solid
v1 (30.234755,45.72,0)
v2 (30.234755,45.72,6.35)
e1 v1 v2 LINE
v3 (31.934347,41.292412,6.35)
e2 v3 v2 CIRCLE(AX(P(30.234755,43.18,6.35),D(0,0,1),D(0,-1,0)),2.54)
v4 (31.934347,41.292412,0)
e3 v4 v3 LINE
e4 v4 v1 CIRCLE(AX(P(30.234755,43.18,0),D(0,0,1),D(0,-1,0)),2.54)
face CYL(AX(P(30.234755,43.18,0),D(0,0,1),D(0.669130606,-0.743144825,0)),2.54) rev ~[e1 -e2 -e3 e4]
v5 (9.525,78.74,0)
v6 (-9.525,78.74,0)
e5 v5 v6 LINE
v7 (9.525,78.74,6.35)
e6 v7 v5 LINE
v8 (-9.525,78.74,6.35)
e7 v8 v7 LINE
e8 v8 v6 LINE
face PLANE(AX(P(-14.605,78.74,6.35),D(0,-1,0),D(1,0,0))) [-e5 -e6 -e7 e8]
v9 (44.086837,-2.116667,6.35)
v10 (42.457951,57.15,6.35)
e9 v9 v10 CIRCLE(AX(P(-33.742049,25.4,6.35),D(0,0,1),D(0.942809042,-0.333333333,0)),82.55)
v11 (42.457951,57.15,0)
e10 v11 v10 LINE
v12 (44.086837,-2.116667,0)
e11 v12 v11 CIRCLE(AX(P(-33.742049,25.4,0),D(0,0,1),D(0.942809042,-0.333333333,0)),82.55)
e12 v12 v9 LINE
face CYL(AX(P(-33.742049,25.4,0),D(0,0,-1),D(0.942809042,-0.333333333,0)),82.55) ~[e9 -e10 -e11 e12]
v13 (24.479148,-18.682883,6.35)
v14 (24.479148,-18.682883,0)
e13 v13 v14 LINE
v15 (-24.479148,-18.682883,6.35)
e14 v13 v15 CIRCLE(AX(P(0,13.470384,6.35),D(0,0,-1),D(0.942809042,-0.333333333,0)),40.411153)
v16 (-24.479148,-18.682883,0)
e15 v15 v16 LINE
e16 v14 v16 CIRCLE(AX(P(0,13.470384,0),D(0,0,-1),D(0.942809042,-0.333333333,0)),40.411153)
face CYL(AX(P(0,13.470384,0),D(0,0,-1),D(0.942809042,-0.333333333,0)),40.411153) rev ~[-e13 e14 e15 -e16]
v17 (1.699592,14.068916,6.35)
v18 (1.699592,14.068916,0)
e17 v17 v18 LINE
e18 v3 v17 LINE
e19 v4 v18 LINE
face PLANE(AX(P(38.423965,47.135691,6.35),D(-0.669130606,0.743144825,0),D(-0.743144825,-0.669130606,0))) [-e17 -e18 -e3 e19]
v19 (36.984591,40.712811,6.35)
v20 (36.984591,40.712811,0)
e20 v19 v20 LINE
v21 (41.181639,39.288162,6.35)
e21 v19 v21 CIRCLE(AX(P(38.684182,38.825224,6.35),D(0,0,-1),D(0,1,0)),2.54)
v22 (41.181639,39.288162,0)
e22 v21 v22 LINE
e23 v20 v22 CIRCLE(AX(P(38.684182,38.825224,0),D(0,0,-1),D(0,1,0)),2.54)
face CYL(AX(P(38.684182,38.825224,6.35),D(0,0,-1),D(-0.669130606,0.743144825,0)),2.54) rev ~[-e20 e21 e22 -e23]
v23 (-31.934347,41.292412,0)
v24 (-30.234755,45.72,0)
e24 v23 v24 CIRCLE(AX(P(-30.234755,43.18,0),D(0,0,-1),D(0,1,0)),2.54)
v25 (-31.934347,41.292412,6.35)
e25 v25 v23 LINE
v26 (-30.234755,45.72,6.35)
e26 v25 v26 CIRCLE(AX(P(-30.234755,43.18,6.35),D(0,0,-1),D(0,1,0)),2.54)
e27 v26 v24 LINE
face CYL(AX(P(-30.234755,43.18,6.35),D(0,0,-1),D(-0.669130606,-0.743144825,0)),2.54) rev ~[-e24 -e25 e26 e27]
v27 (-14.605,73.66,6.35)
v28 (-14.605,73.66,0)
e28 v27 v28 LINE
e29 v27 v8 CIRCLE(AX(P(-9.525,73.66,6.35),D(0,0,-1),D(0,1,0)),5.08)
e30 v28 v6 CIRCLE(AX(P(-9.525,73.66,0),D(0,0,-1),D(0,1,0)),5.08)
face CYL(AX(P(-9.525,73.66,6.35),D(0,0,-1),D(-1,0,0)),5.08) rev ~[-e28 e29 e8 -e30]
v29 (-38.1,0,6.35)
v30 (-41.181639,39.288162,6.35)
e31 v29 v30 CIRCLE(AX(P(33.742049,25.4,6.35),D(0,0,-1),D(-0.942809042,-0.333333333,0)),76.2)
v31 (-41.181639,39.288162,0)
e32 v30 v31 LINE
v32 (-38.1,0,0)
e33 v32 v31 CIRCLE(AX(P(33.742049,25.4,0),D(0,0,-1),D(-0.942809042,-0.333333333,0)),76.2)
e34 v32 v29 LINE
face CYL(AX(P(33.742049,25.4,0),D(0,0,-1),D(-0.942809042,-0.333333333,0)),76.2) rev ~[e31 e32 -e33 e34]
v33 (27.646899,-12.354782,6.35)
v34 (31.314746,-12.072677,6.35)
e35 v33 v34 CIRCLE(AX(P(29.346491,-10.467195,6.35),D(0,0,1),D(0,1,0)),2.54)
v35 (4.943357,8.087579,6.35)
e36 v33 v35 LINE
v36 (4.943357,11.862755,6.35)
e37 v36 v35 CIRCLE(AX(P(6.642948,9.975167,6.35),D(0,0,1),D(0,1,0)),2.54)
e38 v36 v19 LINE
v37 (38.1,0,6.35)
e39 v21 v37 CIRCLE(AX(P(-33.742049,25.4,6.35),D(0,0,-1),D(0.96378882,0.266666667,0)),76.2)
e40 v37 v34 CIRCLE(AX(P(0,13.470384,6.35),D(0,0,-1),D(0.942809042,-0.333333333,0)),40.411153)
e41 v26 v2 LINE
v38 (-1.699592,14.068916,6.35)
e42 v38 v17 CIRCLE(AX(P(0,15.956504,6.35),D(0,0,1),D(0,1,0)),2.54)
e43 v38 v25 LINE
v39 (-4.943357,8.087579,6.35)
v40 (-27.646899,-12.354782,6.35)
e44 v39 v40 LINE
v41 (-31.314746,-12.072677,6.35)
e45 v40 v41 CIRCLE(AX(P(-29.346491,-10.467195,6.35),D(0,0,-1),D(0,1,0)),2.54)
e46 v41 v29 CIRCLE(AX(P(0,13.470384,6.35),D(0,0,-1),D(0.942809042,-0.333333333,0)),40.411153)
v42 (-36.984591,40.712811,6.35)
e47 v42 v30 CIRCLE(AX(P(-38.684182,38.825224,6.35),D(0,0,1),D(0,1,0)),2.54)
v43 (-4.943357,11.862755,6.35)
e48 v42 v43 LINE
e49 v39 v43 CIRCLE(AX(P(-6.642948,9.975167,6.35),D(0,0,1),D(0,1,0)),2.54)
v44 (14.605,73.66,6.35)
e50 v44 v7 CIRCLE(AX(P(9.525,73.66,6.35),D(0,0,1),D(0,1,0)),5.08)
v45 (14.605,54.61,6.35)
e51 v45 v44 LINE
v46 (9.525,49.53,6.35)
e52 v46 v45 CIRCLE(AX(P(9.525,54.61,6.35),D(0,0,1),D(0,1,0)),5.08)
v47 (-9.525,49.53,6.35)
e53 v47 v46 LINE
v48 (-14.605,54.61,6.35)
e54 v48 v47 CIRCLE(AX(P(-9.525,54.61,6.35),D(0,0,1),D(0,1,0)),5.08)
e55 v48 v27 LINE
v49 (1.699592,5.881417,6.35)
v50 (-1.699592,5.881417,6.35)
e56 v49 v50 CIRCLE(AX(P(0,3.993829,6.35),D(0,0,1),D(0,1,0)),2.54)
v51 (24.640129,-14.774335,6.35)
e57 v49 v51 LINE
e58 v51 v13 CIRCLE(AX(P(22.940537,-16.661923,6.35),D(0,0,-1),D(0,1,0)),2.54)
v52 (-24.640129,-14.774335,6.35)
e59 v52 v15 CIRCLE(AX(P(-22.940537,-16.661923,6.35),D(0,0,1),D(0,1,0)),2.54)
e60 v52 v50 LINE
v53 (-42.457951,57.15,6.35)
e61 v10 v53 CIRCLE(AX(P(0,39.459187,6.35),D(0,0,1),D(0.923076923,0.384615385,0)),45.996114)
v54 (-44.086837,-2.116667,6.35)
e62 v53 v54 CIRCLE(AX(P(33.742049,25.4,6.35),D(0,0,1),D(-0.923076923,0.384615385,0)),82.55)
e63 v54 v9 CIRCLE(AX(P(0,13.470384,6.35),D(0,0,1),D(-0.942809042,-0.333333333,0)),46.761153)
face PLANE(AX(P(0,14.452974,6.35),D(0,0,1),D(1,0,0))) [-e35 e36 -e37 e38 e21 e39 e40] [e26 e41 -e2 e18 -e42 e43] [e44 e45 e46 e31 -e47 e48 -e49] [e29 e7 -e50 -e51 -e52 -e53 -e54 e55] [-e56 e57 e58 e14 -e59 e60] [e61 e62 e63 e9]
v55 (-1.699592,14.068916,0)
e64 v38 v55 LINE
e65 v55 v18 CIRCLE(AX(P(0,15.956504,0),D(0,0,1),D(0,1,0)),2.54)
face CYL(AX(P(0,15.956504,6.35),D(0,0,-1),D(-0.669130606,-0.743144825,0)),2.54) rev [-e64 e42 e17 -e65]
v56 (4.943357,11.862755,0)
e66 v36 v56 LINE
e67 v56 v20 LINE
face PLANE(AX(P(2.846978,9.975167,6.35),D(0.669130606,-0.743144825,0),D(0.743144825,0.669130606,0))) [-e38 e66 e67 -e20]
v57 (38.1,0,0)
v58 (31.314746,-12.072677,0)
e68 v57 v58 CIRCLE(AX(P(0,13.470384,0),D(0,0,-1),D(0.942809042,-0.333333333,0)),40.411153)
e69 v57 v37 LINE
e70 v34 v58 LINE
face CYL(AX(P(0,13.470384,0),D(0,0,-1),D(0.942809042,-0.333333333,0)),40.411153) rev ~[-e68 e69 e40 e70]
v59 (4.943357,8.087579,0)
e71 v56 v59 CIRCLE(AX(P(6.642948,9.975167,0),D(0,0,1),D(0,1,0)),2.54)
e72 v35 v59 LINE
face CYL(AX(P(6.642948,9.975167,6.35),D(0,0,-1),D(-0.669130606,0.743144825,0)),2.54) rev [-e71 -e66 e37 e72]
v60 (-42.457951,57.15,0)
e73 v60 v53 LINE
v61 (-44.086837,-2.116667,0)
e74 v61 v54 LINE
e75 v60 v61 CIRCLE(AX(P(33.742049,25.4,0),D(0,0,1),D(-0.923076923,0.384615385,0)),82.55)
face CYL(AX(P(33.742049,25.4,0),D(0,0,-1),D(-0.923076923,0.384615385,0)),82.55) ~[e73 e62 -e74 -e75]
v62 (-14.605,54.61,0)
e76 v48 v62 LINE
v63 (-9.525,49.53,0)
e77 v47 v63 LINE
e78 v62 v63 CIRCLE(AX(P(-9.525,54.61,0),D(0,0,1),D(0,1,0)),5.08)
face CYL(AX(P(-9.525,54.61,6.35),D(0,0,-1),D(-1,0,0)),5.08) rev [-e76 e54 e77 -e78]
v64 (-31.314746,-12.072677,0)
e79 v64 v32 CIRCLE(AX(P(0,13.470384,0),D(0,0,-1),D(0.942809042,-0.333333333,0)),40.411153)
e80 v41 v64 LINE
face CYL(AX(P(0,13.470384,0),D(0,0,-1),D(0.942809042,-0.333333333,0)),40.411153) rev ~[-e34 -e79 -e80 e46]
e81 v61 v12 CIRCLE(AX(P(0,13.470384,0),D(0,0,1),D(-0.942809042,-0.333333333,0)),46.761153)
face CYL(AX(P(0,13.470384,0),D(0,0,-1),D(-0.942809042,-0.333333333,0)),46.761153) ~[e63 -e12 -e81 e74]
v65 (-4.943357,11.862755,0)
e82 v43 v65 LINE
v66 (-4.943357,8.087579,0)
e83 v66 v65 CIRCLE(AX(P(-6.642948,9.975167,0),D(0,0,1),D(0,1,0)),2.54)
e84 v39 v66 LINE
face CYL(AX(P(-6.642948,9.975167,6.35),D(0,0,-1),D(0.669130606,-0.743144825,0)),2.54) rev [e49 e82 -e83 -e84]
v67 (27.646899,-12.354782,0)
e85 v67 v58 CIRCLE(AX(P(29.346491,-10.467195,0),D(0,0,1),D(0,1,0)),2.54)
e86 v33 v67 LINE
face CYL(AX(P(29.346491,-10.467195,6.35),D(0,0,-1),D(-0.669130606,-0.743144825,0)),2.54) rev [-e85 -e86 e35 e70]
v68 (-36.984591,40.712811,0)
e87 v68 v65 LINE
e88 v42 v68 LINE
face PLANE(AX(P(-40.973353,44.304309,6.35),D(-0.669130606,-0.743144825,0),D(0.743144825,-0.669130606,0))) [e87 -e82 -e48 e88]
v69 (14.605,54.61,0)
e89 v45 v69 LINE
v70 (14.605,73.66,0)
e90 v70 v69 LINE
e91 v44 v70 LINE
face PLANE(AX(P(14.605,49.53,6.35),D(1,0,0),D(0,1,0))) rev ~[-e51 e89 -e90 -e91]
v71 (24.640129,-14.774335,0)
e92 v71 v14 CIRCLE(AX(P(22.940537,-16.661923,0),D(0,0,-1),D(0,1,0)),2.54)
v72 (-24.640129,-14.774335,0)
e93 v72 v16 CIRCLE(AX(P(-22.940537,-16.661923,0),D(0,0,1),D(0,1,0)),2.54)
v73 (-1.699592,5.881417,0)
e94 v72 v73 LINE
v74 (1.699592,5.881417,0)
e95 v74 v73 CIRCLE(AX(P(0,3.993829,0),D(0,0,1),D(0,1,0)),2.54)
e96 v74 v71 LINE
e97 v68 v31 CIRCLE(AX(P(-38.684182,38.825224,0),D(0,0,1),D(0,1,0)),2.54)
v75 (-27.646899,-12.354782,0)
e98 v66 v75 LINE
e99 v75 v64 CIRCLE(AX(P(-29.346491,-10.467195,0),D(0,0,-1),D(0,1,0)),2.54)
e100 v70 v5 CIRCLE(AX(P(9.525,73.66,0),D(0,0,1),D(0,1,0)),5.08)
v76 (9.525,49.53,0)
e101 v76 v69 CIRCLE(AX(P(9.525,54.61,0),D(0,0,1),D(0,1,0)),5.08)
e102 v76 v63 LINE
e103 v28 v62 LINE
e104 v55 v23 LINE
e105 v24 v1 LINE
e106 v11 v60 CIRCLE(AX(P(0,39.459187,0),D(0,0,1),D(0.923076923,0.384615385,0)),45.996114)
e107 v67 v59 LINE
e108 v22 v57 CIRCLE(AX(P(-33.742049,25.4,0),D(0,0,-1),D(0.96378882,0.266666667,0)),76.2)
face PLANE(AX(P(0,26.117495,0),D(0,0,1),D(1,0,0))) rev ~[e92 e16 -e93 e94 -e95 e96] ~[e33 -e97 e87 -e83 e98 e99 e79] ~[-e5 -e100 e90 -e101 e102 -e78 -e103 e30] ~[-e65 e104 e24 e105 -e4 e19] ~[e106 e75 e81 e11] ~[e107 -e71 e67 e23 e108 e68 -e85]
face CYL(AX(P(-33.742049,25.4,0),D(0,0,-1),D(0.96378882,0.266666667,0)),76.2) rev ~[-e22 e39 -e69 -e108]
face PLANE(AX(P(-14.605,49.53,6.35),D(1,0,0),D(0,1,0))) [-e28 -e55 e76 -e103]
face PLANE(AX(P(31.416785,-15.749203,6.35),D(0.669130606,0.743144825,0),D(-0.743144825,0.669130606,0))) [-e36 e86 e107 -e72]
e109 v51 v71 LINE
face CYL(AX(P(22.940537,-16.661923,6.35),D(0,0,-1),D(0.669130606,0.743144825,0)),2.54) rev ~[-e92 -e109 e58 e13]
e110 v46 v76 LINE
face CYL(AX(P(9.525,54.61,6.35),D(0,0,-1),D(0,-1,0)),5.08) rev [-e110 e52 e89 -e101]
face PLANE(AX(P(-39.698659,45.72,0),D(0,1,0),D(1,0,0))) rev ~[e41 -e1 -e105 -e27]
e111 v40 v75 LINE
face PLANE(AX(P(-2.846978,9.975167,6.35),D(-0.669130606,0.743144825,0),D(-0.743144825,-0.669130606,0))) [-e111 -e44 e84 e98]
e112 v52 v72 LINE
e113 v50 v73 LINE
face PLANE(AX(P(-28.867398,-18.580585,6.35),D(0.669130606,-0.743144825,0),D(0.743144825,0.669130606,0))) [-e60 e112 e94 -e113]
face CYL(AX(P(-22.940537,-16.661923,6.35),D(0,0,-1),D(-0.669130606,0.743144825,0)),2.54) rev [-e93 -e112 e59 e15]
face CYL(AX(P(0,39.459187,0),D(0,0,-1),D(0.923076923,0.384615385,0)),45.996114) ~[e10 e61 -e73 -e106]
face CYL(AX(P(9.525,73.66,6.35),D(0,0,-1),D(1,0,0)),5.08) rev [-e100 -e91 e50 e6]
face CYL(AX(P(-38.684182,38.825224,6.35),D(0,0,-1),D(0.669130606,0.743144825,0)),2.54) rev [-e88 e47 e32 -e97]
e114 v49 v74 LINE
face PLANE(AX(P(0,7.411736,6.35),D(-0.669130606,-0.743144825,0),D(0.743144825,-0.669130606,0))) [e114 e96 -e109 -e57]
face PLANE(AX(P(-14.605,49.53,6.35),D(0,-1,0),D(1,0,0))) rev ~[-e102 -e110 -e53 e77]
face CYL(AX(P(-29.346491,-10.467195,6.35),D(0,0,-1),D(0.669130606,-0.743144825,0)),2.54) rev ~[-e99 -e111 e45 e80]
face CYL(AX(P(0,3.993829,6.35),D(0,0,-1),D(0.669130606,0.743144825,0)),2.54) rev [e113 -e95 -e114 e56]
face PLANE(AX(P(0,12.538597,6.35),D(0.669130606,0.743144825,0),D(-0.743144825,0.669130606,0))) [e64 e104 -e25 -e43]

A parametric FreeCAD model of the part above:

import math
import FreeCAD as App
import Part
import Sketcher
from FreeCAD import Vector
Q = App.Units.Quantity


def edges_at(feature, points):
    """Names of the edges that pass closest to the given points."""
    edges = feature.Shape.Edges
    near = lambda p: min(range(len(edges)), key=lambda i: edges[i].distToShape(Part.Vertex(*p))[0])
    return sorted({f"Edge{near(p) + 1}" for p in points})


def add_polygon(sketch, points):
    """Adds a closed chain of lines whose ends are joined by coincident constraints."""
    first, n = sketch.GeometryCount, len(points)
    for a, b in zip(points, points[1:] + points[:1]):
        sketch.addGeometry(Part.LineSegment(App.Vector(*a, 0), App.Vector(*b, 0)), False)
    for i in range(n):
        sketch.addConstraint(Sketcher.Constraint("Coincident", first + i, 2, first + (i + 1) % n, 1))

doc = App.newDocument("Part")
body = doc.addObject("PartDesign::Body", "Body")

# Sketch on XY plane
sketch1 = body.newObject("Sketcher::SketchObject", "Sketch")
sketch1.AttachmentSupport = (doc.getObject("XY_Plane"), [""])
sketch1.MapMode = "FlatFace"
sketch1.addGeometry([
    Part.ArcOfCircle(Part.Circle(Vector(0, 39, 0), Vector(0, 0, 1), 46), math.radians(23), math.radians(157)),  # 0
    Part.ArcOfCircle(Part.Circle(Vector(34, 25, 0), Vector(0, 0, 1), 83), math.radians(157), math.radians(199)),  # 1
    Part.ArcOfCircle(Part.Circle(Vector(0, 13, 0), Vector(0, 0, 1), 47), math.radians(-161), math.radians(-19)),  # 2
    Part.ArcOfCircle(Part.Circle(Vector(-34, 25, 0), Vector(0, 0, 1), 83), math.radians(-19), math.radians(23)),  # 3
    Part.ArcOfCircle(Part.Circle(Vector(0, 13, 0), Vector(0, 0, 1), 40), math.radians(-161), math.radians(-19)),  # 4
    Part.ArcOfCircle(Part.Circle(Vector(34, 25, 0), Vector(0, 0, 1), 76), math.radians(165), math.radians(199)),  # 5
    Part.LineSegment(Vector(-40, 46, 0), Vector(40, 46, 0)),  # 6
    Part.ArcOfCircle(Part.Circle(Vector(-34, 25, 0), Vector(0, 0, 1), 76), math.radians(-19), math.radians(15)),  # 7
], False)
sketch1.addConstraint([
    Sketcher.Constraint("Tangent", 0, 2, 1, 1),
    Sketcher.Constraint("Tangent", 1, 2, 2, 1),
    Sketcher.Constraint("Tangent", 2, 2, 3, 1),
    Sketcher.Constraint("Tangent", 3, 2, 0, 1),
    Sketcher.Constraint("Tangent", 4, 1, 5, 2),
    Sketcher.Constraint("Coincident", 5, 1, 6, 1),
    Sketcher.Constraint("Coincident", 6, 2, 7, 2),
    Sketcher.Constraint("Tangent", 7, 1, 4, 2),
    Sketcher.Constraint("Horizontal", 6),
    Sketcher.Constraint("Coincident", 4, 3, 2, 3),
    Sketcher.Constraint("Coincident", 5, 3, 1, 3),
    Sketcher.Constraint("Coincident", 7, 3, 3, 3),
    Sketcher.Constraint("Equal", 1, 3),
    Sketcher.Constraint("Symmetric", 4, 1, 7, 1, -1, 1),
    Sketcher.Constraint("PointOnObject", 0, 3, -2),
    Sketcher.Constraint("Radius", 5, Q("3 in")),
    Sketcher.Constraint("Radius", 1, Q("3.25 in")),
    Sketcher.Constraint("DistanceY", -1, 1, 1, 3, Q("1 in")),
    Sketcher.Constraint("DistanceX", 4, 1, -1, 1, Q("1.5 in")),
    Sketcher.Constraint("DistanceY", -1, 1, 5, 1, Q("1.8 in")),
    Sketcher.Constraint("DistanceY", -1, 1, 0, 2, Q("2.25 in")),
])
pad1 = body.newObject("PartDesign::Pad", "Pad")
pad1.Profile = sketch1
pad1.Length = Q("0.25 in")

# Sketch on XY plane
sketch2 = body.newObject("Sketcher::SketchObject", "Sketch001")
sketch2.AttachmentSupport = (doc.getObject("XY_Plane"), [""])
sketch2.MapMode = "FlatFace"
sketch2.AttachmentOffset = App.Placement(Vector(0, 0, 0.25 * 25.4), App.Rotation())
add_polygon(sketch2, [(-15, 79), (-15, 50), (15, 50), (15, 79)])  # lines 0-3
sketch2.addConstraint([
    Sketcher.Constraint("Vertical", 0),
    Sketcher.Constraint("Horizontal", 1),
    Sketcher.Constraint("Vertical", 2),
    Sketcher.Constraint("Horizontal", 3),
    Sketcher.Constraint("Equal", 3, 0),
    Sketcher.Constraint("DistanceX", 1, 1, 1, 2, Q("1.15 in")),
    Sketcher.Constraint("DistanceY", -1, 1, 2, 2, Q("3.1 in")),
    Sketcher.Constraint("DistanceX", 0, 2, -1, 1, Q("0.575 in")),
])
pocket1 = body.newObject("PartDesign::Pocket", "Pocket")
pocket1.Profile = sketch2
pocket1.Type = "UpToFirst"
doc.recompute()

fillet = body.newObject("PartDesign::Fillet", "Fillet")
fillet.Base = (pocket1, edges_at(pocket1, [
    (14.605, 78.74, 3.175),
    (14.605, 49.53, 3.175),
    (-14.605, 49.53, 3.175),
    (-14.605, 78.74, 3.175),
]))
fillet.Radius = Q("0.2 in")

# Sketch on XY plane
sketch3 = body.newObject("Sketcher::SketchObject", "Sketch002")
sketch3.AttachmentSupport = (doc.getObject("XY_Plane"), [""])
sketch3.MapMode = "FlatFace"
sketch3.AttachmentOffset = App.Placement(Vector(0, 0, 0.25 * 25.4), App.Rotation())
add_polygon(sketch3, [(-38.4, 47.1), (-41, 44.3), (-2.8, 10), (-31.4, -15.7), (-28.9, -18.6), (0, 7.4), (28.9, -18.6), (31.4, -15.7), (2.8, 10), (41, 44.3), (38.4, 47.1), (0, 12.5)])  # lines 0-11
sketch3.addConstraint([
    Sketcher.Constraint("Symmetric", 3, 2, 5, 2, -2),
    Sketcher.Constraint("Symmetric", 2, 2, 6, 2, -2),
    Sketcher.Constraint("Symmetric", 1, 2, 7, 2, -2),
    Sketcher.Constraint("Symmetric", 0, 2, 8, 2, -2),
    Sketcher.Constraint("Symmetric", 9, 2, 11, 2, -2),
    Sketcher.Constraint("PointOnObject", 4, 2, -2),
    Sketcher.Constraint("PointOnObject", 10, 2, -2),
    Sketcher.Constraint("Perpendicular", 0, 1),
    Sketcher.Constraint("Perpendicular", 2, 3),
    Sketcher.Constraint("Perpendicular", 3, 4),
    Sketcher.Constraint("Parallel", 1, 5),
    Sketcher.Constraint("Perpendicular", 9, 10),
    Sketcher.Constraint("Equal", 0, 3),
    Sketcher.Constraint("Angle", 0, Q("-132 deg")),
    Sketcher.Constraint("Distance", 0, Q("0.15 in")),
    Sketcher.Constraint("Distance", 1, Q("51.304098 mm")),
    Sketcher.Constraint("DistanceY", 2, 2, 10, 2, Q("28.287801 mm")),
    Sketcher.Constraint("Distance", 2, Q("38.444468 mm")),
    Sketcher.Constraint("DistanceY", -1, 1, 0, 2, Q("44.304309 mm")),
])
pad2 = body.newObject("PartDesign::Pad", "Pad001")
pad2.Profile = sketch3
pad2.Length = Q("0.25 in")
pad2.Reversed = True
doc.recompute()

fillet2 = body.newObject("PartDesign::Fillet", "Fillet001")
fillet2.Base = (pad2, edges_at(pad2, [
    (-2.847, 9.975, 3.175),
    (2.847, 9.975, 3.175),
    (-40.241, 43.645, 3.175),
    (29.564, -14.081, 3.175),
    (26.832, -16.748, 3.175),
    (-36.852, 45.72, 3.175),
    (40.241, 43.645, 3.175),
    (36.852, 45.72, 3.175),
    (0, 12.539, 3.175),
    (-29.564, -14.081, 3.175),
    (-26.832, -16.748, 3.175),
    (0, 7.412, 3.175),
]))
fillet2.Radius = Q("0.1 in")

doc.recompute()
